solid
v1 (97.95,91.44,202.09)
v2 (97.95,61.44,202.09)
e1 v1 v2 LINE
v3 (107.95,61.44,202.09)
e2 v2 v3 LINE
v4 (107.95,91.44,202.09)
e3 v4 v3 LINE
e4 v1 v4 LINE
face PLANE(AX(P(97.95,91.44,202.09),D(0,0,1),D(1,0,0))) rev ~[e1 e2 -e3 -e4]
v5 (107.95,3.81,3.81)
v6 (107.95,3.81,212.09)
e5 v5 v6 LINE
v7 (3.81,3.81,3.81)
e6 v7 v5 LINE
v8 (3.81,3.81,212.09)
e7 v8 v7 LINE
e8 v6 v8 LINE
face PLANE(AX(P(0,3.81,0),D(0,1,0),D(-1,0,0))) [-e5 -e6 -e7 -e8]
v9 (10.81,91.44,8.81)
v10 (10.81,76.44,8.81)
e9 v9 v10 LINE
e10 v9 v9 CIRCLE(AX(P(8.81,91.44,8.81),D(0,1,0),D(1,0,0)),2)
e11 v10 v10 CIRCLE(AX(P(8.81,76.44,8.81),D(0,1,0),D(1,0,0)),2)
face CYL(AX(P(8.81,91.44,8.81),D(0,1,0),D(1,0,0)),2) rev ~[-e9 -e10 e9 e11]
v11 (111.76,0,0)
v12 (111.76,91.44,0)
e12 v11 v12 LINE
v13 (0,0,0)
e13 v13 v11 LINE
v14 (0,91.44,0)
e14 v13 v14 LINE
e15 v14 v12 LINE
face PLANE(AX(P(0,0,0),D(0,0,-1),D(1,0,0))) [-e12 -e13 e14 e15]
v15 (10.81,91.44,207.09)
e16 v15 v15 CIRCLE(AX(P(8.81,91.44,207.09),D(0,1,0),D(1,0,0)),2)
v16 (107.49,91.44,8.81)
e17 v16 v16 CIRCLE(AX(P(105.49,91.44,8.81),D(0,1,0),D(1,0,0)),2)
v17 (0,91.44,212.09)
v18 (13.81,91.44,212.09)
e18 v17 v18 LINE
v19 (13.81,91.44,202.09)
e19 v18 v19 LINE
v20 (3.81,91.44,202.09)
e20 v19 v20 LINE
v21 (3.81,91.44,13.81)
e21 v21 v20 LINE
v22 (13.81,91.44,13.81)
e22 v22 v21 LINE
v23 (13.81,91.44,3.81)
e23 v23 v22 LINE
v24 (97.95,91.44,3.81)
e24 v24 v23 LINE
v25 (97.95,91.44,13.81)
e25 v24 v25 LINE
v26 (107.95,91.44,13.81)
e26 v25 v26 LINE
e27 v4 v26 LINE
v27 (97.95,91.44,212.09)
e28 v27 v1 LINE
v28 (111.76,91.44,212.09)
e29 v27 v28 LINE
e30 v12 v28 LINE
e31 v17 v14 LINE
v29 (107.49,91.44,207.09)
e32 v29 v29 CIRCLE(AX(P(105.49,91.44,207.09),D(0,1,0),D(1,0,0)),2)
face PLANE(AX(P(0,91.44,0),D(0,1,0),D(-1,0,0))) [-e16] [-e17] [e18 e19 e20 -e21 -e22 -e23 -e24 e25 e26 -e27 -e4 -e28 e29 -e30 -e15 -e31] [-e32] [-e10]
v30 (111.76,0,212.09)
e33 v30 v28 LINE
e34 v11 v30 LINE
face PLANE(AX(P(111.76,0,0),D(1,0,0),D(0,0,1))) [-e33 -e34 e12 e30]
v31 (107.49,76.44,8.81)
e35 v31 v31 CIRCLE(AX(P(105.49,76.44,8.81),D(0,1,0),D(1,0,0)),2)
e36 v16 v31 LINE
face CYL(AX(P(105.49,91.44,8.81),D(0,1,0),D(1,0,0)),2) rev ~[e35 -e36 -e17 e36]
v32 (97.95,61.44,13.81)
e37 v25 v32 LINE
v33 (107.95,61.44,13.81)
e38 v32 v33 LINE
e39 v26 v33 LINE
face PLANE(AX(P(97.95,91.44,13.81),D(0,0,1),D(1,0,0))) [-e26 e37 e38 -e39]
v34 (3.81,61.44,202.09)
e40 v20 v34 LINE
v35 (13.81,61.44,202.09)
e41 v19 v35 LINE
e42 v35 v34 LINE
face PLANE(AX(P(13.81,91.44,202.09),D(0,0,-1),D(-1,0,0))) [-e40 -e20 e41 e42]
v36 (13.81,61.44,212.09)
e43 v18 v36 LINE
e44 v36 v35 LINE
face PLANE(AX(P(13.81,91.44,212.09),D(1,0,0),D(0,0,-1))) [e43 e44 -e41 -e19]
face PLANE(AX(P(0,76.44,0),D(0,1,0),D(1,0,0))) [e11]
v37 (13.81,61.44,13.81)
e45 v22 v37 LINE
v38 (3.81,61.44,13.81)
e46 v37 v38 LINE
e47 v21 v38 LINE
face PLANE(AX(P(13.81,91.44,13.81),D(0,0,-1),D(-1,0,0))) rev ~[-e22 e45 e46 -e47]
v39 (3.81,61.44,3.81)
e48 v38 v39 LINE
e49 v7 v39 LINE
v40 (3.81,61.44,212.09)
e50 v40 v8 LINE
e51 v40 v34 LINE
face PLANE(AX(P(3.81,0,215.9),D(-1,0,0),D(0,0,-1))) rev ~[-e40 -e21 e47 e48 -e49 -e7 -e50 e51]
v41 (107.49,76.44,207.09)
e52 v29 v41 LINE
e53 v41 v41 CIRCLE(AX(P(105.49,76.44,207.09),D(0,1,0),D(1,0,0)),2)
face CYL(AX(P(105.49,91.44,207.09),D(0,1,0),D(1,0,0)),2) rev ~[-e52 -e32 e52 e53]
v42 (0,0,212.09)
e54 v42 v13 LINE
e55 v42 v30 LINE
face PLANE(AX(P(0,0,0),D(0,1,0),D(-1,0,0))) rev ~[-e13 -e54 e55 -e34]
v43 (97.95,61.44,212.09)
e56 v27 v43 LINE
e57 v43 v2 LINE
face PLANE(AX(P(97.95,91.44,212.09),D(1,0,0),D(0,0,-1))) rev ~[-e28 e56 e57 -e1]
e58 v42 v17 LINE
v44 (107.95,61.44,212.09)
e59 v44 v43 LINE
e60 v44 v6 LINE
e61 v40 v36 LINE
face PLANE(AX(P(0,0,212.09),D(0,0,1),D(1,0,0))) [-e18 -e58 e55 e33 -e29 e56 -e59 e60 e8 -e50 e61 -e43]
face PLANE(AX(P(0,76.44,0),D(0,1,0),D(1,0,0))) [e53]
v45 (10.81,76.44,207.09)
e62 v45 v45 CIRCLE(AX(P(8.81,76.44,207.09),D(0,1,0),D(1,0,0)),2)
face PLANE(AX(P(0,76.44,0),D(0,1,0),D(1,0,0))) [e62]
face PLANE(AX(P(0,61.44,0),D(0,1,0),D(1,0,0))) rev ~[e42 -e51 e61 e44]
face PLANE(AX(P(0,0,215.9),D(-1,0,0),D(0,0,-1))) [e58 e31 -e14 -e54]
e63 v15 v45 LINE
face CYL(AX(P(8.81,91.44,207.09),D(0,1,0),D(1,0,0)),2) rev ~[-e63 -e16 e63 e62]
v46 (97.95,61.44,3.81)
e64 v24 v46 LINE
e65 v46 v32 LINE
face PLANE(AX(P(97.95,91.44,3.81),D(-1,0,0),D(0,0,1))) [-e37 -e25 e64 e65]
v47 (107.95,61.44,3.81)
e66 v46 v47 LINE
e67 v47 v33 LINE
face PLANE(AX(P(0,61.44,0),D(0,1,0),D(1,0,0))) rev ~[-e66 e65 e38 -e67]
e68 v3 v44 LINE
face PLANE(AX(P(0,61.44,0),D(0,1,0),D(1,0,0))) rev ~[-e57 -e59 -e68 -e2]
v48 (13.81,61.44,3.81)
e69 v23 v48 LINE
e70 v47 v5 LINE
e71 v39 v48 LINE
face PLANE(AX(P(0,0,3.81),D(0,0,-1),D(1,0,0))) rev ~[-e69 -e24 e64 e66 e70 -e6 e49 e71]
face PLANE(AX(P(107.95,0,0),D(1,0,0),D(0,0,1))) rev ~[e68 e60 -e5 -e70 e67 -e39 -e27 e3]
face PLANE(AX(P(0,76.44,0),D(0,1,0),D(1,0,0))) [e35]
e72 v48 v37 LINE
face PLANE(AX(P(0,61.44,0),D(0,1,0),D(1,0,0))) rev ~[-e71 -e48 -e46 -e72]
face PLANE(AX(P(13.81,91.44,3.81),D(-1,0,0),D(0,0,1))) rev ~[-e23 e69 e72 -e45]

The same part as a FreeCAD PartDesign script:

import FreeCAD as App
import Part
import Sketcher
from FreeCAD import Vector
Q = App.Units.Quantity


def faces_at(feature, points):
    """Names of the faces that lie closest to the given points."""
    faces = feature.Shape.Faces
    near = lambda p: min(range(len(faces)), key=lambda i: faces[i].distToShape(Part.Vertex(*p))[0])
    return sorted({f"Face{near(p) + 1}" for p in points})


def add_polygon(sketch, points):
    """Adds a closed chain of lines whose ends are joined by coincident constraints."""
    first, n = sketch.GeometryCount, len(points)
    for a, b in zip(points, points[1:] + points[:1]):
        sketch.addGeometry(Part.LineSegment(App.Vector(*a, 0), App.Vector(*b, 0)), False)
    for i in range(n):
        sketch.addConstraint(Sketcher.Constraint("Coincident", first + i, 2, first + (i + 1) % n, 1))

doc = App.newDocument("Part")
params = doc.addObject("Spreadsheet::Sheet", "Params")
for row, (alias, value) in enumerate([
    ("sketch1_width", "4.4 in"),
    ("sketch1_height", "8.5 in"),
    ("pad1_length", "3.6 in"),
    ("thickness_wall", "0.15 in"),
    ("sketch2_width", "4.4 in"),
    ("sketch2_height", "3.6 in"),
    ("pocket1_length", "0.15 in"),
    ("pad2_length", "1.1811024 in"),
    ("pocket2_length", "15 mm"),
], start=1):
    params.set(f"A{row}", alias)
    params.set(f"B{row}", "=" + value)
    params.setAlias(f"B{row}", alias)

body = doc.addObject("PartDesign::Body", "Body")

sketch1 = doc.addObject("Sketcher::SketchObject", "Sketch")
body.addObject(sketch1)
sketch1.AttachmentSupport = (doc.XZ_Plane, [""])
sketch1.MapMode = "FlatFace"
add_polygon(sketch1, [(112, 0), (0, 0), (0, 216), (112, 216)])
sketch1.addConstraint([
    Sketcher.Constraint("Horizontal", 0),
    Sketcher.Constraint("Vertical", 1),
    Sketcher.Constraint("Horizontal", 2),
    Sketcher.Constraint("Vertical", 3),
    Sketcher.Constraint("Coincident", 0, 2, -1, 1),
    Sketcher.Constraint("DistanceX", 0, 2, 0, 1, Q("4.4 in")),
    Sketcher.Constraint("DistanceY", 1, 1, 1, 2, Q("8.5 in")),
])
sketch1.setExpression("Constraints[9]", "Params.sketch1_width")
sketch1.setExpression("Constraints[10]", "Params.sketch1_height")
pad1 = doc.addObject("PartDesign::Pad", "Pad")
body.addObject(pad1)
pad1.Profile = sketch1
pad1.setExpression("Length", "Params.pad1_length")
pad1.Reversed = True
doc.recompute()

thickness = doc.addObject("PartDesign::Thickness", "Thickness")
body.addObject(thickness)
thickness.Base = (pad1, faces_at(pad1, [(37.253, 91.44, 71.967)]))
thickness.setExpression("Value", "Params.thickness_wall")
thickness.Reversed = True
thickness.Join = "Intersection"

sketch2 = doc.addObject("Sketcher::SketchObject", "Sketch001")
body.addObject(sketch2)
sketch2.AttachmentSupport = (doc.XY_Plane, [""])
sketch2.MapMode = "FlatFace"
sketch2.AttachmentOffset = App.Placement(Vector(0, 0, 8.5 * 25.4), App.Rotation())
add_polygon(sketch2, [(0, 91), (0, 0), (112, 0), (112, 91)])
sketch2.addConstraint([
    Sketcher.Constraint("Vertical", 0),
    Sketcher.Constraint("Horizontal", 1),
    Sketcher.Constraint("Vertical", 2),
    Sketcher.Constraint("Horizontal", 3),
    Sketcher.Constraint("Coincident", 0, 2, -1, 1),
    Sketcher.Constraint("DistanceX", 1, 1, 1, 2, Q("4.4 in")),
    Sketcher.Constraint("DistanceY", 0, 2, 0, 1, Q("3.6 in")),
])
sketch2.setExpression("Constraints[9]", "Params.sketch2_width")
sketch2.setExpression("Constraints[10]", "Params.sketch2_height")
pocket1 = doc.addObject("PartDesign::Pocket", "Pocket")
body.addObject(pocket1)
pocket1.Profile = sketch2
pocket1.setExpression("Length", "Params.pocket1_length")

sketch3 = doc.addObject("Sketcher::SketchObject", "Sketch002")
body.addObject(sketch3)
sketch3.AttachmentSupport = (doc.XZ_Plane, [""])
sketch3.MapMode = "FlatFace"
sketch3.AttachmentOffset = App.Placement(Vector(0, 0, -3.6 * 25.4), App.Rotation())
add_polygon(sketch3, [(108, 212), (108, 202), (98, 202), (98, 212)])
add_polygon(sketch3, [(108, 4), (98, 4), (98, 14), (108, 14)])
add_polygon(sketch3, [(4, 4), (4, 14), (14, 14), (14, 4)])
add_polygon(sketch3, [(4, 202), (4, 212), (14, 212), (14, 202)])
sketch3.addConstraint([
    Sketcher.Constraint("Vertical", 0),
    Sketcher.Constraint("Horizontal", 1),
    Sketcher.Constraint("Vertical", 2),
    Sketcher.Constraint("Horizontal", 3),
    Sketcher.Constraint("Horizontal", 4),
    Sketcher.Constraint("Vertical", 5),
    Sketcher.Constraint("Horizontal", 6),
    Sketcher.Constraint("Vertical", 7),
    Sketcher.Constraint("Vertical", 8),
    Sketcher.Constraint("Horizontal", 9),
    Sketcher.Constraint("Vertical", 10),
    Sketcher.Constraint("Horizontal", 11),
    Sketcher.Constraint("Vertical", 12),
    Sketcher.Constraint("Horizontal", 13),
    Sketcher.Constraint("Vertical", 14),
    Sketcher.Constraint("Horizontal", 15),
    Sketcher.Constraint("Horizontal", 6, 2, 8, 2),
    Sketcher.Constraint("Horizontal", 7, 2, 10, 2),
    Sketcher.Constraint("Horizontal", 3, 2, 12, 2),
    Sketcher.Constraint("Horizontal", 1, 2, 14, 2),
    Sketcher.Constraint("Vertical", 2, 2, 4, 2),
    Sketcher.Constraint("Vertical", 3, 2, 6, 2),
    Sketcher.Constraint("Vertical", 11, 2, 12, 2),
    Sketcher.Constraint("Vertical", 10, 2, 13, 2),
    Sketcher.Constraint("Equal", 6, 9),
    Sketcher.Constraint("Equal", 15, 0),
    Sketcher.Constraint("Equal", 2, 5),
    Sketcher.Constraint("DistanceX", 1, 2, 1, 1, Q("0.3937 in")),
    Sketcher.Constraint("DistanceY", 4, 2, 2, 2, Q("8.2 in")),
    Sketcher.Constraint("DistanceX", 8, 2, 6, 2, Q("4.1 in")),
    Sketcher.Constraint("DistanceX", -1, 1, 0, 2, Q("4.25 in")),
    Sketcher.Constraint("DistanceY", -1, 1, 2, 2, Q("8.35 in")),
])
pad2 = doc.addObject("PartDesign::Pad", "Pad001")
body.addObject(pad2)
pad2.Profile = sketch3
pad2.setExpression("Length", "Params.pad2_length")

sketch4 = doc.addObject("Sketcher::SketchObject", "Sketch003")
body.addObject(sketch4)
sketch4.AttachmentSupport = (doc.XZ_Plane, [""])
sketch4.MapMode = "FlatFace"
sketch4.AttachmentOffset = App.Placement(Vector(0, 0, -3.6 * 25.4), App.Rotation())
sketch4.addGeometry([
    Part.Circle(Vector(8.8, 8.8, 0), Vector(0, 0, 1), 2),
    Part.Circle(Vector(105.5, 8.8, 0), Vector(0, 0, 1), 2),
    Part.Circle(Vector(105.5, 207.1, 0), Vector(0, 0, 1), 2),
    Part.Circle(Vector(8.8, 207.1, 0), Vector(0, 0, 1), 2),
], False)
sketch4.addConstraint([
    Sketcher.Constraint("Equal", 0, 1),
    Sketcher.Constraint("Equal", 1, 2),
    Sketcher.Constraint("Equal", 2, 3),
    Sketcher.Constraint("Horizontal", 0, 3, 1, 3),
    Sketcher.Constraint("Horizontal", 2, 3, 3, 3),
    Sketcher.Constraint("Vertical", 1, 3, 2, 3),
    Sketcher.Constraint("Vertical", 0, 3, 3, 3),
    Sketcher.Constraint("Diameter", 0, 4.0),
    Sketcher.Constraint("DistanceX", 0, 3, 1, 3, Q("3.8063 in")),
    Sketcher.Constraint("DistanceY", 1, 3, 2, 3, Q("7.8063 in")),
    Sketcher.Constraint("DistanceX", -1, 1, 0, 3, 8.81),
    Sketcher.Constraint("DistanceY", -1, 1, 0, 3, 8.81),
])
pocket2 = doc.addObject("PartDesign::Pocket", "Pocket001")
body.addObject(pocket2)
pocket2.Profile = sketch4
pocket2.setExpression("Length", "Params.pocket2_length")
pocket2.Reversed = True

doc.recompute()
